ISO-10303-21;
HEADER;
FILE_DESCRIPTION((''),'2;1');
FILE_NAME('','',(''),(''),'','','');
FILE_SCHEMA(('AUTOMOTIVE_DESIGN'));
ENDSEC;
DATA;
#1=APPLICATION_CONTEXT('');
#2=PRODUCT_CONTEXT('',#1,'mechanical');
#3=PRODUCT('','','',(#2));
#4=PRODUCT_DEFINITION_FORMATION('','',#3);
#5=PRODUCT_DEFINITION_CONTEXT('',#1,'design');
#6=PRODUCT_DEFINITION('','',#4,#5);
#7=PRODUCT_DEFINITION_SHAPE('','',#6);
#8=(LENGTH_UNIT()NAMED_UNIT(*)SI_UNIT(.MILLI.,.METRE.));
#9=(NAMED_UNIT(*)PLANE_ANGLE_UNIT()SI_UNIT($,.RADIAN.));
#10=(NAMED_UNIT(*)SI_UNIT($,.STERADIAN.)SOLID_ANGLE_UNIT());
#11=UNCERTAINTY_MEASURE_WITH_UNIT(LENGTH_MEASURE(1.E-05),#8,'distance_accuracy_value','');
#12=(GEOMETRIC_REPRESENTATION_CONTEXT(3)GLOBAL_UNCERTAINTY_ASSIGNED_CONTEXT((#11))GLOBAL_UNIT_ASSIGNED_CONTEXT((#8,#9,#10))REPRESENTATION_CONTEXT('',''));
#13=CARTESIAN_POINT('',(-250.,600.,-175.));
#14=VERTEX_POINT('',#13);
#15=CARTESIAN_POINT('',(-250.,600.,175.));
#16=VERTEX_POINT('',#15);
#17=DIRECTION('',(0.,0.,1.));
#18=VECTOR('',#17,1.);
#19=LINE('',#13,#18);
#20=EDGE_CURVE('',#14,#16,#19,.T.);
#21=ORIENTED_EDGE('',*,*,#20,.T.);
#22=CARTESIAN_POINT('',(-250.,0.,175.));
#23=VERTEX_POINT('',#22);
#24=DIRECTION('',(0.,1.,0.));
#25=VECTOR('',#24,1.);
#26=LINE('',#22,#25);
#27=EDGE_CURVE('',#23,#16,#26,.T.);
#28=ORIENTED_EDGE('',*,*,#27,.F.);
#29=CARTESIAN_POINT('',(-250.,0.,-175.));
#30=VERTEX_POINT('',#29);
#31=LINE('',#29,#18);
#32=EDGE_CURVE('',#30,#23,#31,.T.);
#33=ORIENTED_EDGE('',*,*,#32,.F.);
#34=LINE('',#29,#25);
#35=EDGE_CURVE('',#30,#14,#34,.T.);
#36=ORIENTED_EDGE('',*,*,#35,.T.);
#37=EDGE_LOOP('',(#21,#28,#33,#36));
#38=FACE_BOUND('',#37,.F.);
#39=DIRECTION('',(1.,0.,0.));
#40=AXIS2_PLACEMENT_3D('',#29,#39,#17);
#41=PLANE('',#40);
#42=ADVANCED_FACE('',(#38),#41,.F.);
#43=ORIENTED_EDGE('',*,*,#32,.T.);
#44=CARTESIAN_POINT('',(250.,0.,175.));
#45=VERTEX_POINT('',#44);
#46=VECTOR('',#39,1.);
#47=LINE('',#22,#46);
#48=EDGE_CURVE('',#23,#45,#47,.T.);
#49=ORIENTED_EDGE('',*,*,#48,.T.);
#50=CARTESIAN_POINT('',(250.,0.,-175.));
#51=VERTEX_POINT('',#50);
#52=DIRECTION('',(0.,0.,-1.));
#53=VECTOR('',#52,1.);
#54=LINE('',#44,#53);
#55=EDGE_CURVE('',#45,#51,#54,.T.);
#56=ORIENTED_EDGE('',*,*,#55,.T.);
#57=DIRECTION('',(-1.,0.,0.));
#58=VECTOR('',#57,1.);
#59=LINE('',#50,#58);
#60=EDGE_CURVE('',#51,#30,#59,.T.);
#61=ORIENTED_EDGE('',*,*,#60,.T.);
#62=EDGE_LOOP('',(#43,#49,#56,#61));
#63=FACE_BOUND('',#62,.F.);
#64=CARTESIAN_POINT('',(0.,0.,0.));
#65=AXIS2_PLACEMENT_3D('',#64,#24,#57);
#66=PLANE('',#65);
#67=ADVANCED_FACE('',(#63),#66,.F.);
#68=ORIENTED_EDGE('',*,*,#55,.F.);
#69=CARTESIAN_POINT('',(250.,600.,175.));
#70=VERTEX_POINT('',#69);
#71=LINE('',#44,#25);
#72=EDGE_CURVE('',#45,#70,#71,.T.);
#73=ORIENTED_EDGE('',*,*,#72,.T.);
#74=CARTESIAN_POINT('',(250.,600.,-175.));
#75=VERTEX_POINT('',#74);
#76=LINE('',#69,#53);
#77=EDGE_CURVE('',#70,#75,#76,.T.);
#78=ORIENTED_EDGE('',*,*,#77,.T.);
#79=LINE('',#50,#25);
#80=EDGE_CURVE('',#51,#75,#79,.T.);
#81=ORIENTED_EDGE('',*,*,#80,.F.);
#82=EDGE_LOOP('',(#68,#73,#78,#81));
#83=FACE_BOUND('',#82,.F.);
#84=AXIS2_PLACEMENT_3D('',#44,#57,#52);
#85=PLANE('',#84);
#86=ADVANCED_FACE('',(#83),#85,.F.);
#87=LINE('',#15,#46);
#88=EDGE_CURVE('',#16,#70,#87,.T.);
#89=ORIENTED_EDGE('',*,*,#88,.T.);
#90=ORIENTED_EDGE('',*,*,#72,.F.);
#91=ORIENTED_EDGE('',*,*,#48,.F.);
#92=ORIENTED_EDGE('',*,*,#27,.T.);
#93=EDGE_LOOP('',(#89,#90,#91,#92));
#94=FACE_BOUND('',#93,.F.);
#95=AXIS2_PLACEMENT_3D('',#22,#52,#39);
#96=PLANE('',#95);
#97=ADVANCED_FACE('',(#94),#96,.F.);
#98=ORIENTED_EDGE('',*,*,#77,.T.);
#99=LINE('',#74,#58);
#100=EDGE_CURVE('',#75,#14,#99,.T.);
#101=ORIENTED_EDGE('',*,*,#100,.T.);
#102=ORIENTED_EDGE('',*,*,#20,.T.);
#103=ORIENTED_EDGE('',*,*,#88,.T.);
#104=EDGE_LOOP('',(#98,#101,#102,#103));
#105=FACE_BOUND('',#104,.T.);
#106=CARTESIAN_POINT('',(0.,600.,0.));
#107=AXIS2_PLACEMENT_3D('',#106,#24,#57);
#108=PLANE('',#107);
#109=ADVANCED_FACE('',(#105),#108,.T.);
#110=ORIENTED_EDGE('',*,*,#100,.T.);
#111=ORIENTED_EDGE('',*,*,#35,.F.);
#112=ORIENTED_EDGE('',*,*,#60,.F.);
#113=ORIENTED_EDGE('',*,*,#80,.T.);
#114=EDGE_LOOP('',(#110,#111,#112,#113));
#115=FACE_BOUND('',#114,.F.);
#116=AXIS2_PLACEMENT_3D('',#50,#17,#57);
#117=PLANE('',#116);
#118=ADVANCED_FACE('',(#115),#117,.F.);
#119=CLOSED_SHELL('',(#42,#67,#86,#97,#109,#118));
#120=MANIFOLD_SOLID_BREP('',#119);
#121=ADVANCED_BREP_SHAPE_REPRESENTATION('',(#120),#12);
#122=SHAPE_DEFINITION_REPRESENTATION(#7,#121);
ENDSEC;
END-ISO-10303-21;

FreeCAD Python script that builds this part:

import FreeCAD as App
import Part
import Sketcher
Q = App.Units.Quantity

doc = App.newDocument("Part")
body = doc.addObject("PartDesign::Body", "Body")

# Sketch on XZ plane
sketch1 = body.newObject("Sketcher::SketchObject", "Sketch")
sketch1.AttachmentSupport = (doc.getObject("XZ_Plane"), [""])
sketch1.MapMode = "FlatFace"
sketch1.addGeometry([
    Part.LineSegment(App.Vector(-250, -175, 0), App.Vector(-250, 175, 0)),
    Part.LineSegment(App.Vector(-250, 175, 0), App.Vector(250, 175, 0)),
    Part.LineSegment(App.Vector(250, 175, 0), App.Vector(250, -175, 0)),
    Part.LineSegment(App.Vector(250, -175, 0), App.Vector(-250, -175, 0)),
], False)
sketch1.addConstraint([
    Sketcher.Constraint("Coincident", 0, 2, 1, 1),
    Sketcher.Constraint("Coincident", 1, 2, 2, 1),
    Sketcher.Constraint("Coincident", 2, 2, 3, 1),
    Sketcher.Constraint("Coincident", 3, 2, 0, 1),
    Sketcher.Constraint("Vertical", 0),
    Sketcher.Constraint("Horizontal", 1),
    Sketcher.Constraint("Vertical", 2),
    Sketcher.Constraint("Horizontal", 3),
    Sketcher.Constraint("Symmetric", 0, 2, 2, 2, -1, 1),
    Sketcher.Constraint("DistanceX", 1, 1, 1, 2, Q("500 mm")),
    Sketcher.Constraint("DistanceY", 0, 1, 0, 2, Q("350 mm")),
])
pad1 = body.newObject("PartDesign::Pad", "Pad")
pad1.Profile = sketch1
pad1.Length = 600
pad1.Reversed = True

doc.recompute()
